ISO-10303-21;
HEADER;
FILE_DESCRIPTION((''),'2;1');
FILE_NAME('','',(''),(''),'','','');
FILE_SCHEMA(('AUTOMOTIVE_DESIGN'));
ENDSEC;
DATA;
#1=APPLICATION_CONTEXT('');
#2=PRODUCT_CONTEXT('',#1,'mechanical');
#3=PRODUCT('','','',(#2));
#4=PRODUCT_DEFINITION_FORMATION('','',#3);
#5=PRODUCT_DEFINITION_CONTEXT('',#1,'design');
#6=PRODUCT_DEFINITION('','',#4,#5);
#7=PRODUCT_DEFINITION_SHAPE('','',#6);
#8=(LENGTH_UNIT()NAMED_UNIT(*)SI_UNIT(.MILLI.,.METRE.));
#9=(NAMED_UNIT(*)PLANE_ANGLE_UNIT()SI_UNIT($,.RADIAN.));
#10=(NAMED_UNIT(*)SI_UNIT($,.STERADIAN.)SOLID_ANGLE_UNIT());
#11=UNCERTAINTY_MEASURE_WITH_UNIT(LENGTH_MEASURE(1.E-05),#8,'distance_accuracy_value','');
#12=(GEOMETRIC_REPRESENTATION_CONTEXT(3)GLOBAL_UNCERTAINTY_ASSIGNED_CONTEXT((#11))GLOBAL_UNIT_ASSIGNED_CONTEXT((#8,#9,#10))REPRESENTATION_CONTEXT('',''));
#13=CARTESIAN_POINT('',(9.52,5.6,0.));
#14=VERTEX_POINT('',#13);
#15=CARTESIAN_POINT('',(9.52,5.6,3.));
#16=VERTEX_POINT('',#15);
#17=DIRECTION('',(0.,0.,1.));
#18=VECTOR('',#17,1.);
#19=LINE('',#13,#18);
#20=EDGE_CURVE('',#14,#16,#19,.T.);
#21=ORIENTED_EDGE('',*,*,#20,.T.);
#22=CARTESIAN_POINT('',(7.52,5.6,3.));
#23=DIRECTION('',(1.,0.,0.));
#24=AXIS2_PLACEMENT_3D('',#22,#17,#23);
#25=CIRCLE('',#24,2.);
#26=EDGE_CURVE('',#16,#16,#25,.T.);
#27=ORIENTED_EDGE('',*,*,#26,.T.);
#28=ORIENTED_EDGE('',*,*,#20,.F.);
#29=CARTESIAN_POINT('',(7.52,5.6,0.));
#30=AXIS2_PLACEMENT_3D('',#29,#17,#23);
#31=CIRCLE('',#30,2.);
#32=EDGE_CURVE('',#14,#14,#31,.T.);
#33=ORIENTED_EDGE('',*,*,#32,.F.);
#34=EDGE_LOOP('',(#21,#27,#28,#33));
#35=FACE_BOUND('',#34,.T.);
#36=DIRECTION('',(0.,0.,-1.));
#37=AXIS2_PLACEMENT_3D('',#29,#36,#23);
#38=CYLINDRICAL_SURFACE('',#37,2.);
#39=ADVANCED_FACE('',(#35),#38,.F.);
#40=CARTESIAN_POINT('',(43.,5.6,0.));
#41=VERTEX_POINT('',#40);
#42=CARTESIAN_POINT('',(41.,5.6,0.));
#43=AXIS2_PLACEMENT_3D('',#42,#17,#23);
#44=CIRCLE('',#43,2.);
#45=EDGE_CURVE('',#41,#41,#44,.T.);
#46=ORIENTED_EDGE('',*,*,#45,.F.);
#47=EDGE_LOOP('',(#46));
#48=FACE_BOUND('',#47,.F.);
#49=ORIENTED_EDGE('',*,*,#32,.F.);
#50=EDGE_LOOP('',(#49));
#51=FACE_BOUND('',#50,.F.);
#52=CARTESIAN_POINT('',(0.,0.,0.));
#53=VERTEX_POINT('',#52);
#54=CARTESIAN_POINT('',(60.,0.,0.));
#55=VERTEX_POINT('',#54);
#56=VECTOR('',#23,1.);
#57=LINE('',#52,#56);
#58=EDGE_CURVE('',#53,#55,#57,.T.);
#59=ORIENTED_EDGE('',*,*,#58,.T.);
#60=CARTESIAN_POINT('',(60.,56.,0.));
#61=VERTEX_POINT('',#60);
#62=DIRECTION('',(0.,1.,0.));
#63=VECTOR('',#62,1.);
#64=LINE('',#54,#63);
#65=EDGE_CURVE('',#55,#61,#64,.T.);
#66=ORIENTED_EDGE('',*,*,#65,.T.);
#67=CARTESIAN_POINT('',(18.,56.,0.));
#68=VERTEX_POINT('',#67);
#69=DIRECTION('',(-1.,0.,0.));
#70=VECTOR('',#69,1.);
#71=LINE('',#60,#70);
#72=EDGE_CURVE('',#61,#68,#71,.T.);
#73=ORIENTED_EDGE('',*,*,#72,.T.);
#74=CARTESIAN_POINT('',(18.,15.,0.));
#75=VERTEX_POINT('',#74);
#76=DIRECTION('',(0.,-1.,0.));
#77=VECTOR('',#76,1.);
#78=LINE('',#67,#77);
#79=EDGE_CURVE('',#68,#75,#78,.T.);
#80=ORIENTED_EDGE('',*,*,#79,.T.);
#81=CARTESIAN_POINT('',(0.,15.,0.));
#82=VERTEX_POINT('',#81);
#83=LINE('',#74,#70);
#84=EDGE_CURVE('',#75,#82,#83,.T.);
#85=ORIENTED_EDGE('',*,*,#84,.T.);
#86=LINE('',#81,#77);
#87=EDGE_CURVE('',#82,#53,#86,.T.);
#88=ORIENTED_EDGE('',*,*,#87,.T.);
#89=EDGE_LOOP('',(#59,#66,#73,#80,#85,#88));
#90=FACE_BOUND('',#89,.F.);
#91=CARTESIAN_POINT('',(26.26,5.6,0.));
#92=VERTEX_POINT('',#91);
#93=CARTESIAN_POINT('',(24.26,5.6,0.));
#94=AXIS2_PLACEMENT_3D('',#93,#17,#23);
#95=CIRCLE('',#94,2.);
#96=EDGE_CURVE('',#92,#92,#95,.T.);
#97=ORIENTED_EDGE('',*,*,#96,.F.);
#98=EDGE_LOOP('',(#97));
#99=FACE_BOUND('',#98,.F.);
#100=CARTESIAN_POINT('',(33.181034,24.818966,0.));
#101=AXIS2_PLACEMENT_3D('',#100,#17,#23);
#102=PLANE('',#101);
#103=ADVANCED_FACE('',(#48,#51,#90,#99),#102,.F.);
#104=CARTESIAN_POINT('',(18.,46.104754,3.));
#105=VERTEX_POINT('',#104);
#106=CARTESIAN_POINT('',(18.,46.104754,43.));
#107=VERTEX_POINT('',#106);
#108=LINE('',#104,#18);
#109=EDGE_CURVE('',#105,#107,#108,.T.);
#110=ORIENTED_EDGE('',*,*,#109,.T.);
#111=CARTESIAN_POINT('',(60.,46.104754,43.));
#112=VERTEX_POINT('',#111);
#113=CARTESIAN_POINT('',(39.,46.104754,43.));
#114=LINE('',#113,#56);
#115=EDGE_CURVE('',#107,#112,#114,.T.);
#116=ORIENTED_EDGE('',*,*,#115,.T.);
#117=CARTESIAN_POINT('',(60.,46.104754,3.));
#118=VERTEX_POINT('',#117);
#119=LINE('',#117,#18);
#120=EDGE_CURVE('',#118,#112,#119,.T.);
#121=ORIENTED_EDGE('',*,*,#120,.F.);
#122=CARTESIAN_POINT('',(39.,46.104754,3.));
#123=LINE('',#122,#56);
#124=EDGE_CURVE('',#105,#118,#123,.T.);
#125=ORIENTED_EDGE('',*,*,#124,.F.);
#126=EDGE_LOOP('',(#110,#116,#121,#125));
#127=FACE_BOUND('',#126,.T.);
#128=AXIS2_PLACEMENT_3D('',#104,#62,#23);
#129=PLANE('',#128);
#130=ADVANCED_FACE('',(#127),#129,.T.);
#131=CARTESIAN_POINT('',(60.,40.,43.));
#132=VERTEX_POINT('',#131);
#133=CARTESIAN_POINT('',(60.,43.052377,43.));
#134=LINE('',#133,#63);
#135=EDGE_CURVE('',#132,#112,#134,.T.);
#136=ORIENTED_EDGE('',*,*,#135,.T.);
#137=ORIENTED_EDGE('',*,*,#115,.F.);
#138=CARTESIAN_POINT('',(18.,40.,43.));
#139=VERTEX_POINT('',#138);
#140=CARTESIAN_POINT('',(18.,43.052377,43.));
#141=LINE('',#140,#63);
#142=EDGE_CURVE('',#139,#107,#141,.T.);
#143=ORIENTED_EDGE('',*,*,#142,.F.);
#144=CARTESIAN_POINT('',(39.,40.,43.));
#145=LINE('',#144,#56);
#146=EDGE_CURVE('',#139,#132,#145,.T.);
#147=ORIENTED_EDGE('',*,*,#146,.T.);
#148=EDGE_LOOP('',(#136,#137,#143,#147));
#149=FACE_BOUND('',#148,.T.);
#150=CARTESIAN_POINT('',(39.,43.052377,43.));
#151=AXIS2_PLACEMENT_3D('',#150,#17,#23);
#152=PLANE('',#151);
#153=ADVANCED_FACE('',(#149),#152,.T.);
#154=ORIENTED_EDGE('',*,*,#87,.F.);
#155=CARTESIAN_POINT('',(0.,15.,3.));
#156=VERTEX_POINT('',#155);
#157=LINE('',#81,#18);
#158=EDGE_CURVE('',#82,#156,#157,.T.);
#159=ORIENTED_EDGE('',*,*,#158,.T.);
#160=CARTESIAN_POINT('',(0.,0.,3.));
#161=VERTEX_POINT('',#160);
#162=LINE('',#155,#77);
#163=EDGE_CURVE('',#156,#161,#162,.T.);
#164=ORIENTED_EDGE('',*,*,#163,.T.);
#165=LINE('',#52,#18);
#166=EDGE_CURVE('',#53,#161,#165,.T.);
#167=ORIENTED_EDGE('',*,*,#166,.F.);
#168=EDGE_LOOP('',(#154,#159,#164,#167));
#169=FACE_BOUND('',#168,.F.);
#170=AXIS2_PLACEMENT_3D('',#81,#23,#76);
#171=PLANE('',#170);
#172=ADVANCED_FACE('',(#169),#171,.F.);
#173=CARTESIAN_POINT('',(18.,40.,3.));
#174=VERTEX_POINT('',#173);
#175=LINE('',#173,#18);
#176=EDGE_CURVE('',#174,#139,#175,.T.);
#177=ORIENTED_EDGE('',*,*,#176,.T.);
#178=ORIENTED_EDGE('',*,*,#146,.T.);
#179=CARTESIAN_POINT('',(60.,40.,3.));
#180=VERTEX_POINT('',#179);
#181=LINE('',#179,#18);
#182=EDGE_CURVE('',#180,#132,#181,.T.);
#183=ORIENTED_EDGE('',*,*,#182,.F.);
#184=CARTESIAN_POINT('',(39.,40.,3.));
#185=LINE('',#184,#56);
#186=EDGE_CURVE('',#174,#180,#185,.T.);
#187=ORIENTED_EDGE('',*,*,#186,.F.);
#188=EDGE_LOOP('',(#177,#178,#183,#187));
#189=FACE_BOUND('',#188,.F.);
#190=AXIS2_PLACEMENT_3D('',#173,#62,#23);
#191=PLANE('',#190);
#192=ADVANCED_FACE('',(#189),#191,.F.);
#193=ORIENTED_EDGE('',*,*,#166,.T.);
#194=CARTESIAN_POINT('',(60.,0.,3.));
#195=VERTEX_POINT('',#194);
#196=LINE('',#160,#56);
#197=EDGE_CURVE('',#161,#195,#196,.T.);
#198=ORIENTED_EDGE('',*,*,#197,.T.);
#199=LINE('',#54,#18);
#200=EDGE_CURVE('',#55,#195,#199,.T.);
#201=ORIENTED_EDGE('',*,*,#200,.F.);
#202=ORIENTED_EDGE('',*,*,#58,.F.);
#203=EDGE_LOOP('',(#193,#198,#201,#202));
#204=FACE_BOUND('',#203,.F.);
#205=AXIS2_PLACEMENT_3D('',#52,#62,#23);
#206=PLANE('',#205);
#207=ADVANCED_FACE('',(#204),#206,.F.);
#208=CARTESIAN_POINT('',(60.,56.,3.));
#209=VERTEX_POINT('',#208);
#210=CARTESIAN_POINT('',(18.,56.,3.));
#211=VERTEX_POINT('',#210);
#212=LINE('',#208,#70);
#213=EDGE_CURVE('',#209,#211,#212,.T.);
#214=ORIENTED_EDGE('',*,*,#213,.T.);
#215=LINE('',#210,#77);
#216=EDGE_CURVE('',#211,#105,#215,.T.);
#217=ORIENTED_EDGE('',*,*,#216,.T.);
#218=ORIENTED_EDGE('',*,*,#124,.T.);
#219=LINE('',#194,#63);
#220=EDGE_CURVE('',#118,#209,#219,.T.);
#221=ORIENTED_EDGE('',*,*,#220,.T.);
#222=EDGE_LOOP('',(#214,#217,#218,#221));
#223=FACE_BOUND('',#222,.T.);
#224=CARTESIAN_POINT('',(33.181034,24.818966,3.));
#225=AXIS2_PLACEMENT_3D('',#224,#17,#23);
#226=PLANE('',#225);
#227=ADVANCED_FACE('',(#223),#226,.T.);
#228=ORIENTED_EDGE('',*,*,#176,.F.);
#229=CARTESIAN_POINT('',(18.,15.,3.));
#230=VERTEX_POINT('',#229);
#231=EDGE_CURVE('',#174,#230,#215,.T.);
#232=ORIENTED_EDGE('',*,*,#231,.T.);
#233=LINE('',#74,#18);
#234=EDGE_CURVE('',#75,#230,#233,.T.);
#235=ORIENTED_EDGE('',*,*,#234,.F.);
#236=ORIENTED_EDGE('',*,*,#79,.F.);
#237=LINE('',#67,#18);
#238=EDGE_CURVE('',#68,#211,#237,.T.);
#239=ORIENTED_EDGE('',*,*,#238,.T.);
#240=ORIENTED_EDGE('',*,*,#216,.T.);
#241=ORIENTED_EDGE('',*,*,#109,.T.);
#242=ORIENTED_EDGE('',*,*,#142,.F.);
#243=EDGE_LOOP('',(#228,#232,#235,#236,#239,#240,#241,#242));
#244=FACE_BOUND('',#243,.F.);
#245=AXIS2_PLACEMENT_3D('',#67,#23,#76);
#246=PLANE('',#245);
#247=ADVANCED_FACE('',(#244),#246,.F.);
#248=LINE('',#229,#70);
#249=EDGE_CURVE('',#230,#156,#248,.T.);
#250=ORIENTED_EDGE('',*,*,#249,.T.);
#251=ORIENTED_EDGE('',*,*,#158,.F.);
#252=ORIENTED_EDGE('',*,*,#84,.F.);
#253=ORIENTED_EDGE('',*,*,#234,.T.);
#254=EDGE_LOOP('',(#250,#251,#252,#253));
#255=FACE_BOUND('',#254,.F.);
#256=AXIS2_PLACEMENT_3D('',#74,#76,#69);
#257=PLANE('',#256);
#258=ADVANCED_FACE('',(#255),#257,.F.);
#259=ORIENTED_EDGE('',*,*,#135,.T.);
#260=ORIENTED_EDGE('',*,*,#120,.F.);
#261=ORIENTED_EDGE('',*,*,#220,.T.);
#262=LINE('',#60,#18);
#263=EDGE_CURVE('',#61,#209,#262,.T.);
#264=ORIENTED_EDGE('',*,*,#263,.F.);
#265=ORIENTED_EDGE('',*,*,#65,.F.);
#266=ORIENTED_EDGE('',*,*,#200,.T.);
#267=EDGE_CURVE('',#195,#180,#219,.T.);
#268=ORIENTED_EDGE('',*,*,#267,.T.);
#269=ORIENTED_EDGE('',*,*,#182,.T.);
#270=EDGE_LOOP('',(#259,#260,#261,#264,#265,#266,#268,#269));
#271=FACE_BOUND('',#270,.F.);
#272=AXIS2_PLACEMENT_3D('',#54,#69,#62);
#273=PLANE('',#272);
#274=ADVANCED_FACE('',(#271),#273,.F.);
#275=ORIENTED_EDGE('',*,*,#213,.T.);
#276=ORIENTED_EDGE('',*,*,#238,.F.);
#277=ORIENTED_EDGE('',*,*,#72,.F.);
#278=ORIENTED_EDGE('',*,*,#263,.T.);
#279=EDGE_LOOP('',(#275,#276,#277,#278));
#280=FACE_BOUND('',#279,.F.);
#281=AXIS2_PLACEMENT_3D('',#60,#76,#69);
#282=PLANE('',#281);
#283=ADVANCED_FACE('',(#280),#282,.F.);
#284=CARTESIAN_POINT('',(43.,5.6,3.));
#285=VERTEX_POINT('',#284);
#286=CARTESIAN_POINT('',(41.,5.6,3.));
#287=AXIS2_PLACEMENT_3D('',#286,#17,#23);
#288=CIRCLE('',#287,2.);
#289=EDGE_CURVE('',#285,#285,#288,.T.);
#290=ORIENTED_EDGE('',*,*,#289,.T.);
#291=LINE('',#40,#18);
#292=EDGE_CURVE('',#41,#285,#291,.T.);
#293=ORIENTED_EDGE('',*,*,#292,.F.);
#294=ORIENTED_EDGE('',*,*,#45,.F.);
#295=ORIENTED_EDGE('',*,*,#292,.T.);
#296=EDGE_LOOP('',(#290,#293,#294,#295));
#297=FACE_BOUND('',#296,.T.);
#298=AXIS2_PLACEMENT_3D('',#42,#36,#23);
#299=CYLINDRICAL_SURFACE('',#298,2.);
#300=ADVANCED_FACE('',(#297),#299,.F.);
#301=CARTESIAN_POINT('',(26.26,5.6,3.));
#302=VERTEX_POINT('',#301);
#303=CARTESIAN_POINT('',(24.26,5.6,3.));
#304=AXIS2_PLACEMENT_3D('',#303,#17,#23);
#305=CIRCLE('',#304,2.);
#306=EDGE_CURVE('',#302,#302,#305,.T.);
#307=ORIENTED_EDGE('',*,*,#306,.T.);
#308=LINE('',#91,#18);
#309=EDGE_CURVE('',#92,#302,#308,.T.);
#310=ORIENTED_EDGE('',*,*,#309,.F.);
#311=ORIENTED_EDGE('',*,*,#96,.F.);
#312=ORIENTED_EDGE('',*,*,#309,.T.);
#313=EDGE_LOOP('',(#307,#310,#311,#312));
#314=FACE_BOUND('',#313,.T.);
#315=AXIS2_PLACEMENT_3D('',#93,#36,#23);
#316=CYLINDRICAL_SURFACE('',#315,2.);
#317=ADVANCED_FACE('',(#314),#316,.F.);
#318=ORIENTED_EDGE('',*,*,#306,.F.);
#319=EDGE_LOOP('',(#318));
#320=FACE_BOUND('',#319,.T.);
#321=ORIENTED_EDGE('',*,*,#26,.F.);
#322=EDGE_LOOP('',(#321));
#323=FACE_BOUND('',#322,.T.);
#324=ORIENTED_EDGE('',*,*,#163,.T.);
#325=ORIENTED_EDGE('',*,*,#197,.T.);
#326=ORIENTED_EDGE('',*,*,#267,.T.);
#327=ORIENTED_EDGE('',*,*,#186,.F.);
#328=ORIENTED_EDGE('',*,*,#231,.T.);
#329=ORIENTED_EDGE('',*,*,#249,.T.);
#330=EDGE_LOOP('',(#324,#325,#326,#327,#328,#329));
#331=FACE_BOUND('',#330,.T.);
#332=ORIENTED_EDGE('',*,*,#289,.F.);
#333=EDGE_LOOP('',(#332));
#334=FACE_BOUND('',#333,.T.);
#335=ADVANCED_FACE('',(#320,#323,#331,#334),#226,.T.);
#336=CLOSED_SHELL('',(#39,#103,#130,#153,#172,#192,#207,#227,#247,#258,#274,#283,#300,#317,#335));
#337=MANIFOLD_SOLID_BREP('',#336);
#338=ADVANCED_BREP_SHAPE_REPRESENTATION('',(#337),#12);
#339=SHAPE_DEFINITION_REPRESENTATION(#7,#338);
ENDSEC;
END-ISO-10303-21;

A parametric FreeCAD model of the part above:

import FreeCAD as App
import Part
import Sketcher

V = App.Vector

doc = App.newDocument("Part")
body = doc.addObject("PartDesign::Body", "Body")

# Sketch on XY plane
sketch1 = doc.addObject("Sketcher::SketchObject", "Sketch")
body.addObject(sketch1)
sketch1.AttachmentSupport = (doc.XY_Plane, [""])
sketch1.MapMode = "FlatFace"
sketch1.addGeometry([
    Part.LineSegment(V(0, 0, 0), V(60, 0, 0)),  # 0
    Part.LineSegment(V(60, 0, 0), V(60, 56, 0)),  # 1
    Part.LineSegment(V(60, 56, 0), V(18, 56, 0)),  # 2
    Part.LineSegment(V(18, 56, 0), V(18, 15, 0)),  # 3
    Part.LineSegment(V(18, 15, 0), V(0, 15, 0)),  # 4
    Part.LineSegment(V(0, 15, 0), V(0, 0, 0)),  # 5
    Part.Circle(V(7.52, 5.6, 0), V(0, 0, 1), 2),  # 6
    Part.Circle(V(24.26, 5.6, 0), V(0, 0, 1), 2),  # 7
    Part.Circle(V(41, 5.6, 0), V(0, 0, 1), 2),  # 8
], False)
sketch1.addConstraint([
    Sketcher.Constraint("Coincident", 0, 2, 1, 1),
    Sketcher.Constraint("Coincident", 1, 2, 2, 1),
    Sketcher.Constraint("Coincident", 2, 2, 3, 1),
    Sketcher.Constraint("Coincident", 3, 2, 4, 1),
    Sketcher.Constraint("Coincident", 4, 2, 5, 1),
    Sketcher.Constraint("Coincident", 5, 2, 0, 1),
    Sketcher.Constraint("Horizontal", 0),
    Sketcher.Constraint("Vertical", 1),
    Sketcher.Constraint("Horizontal", 2),
    Sketcher.Constraint("Vertical", 3),
    Sketcher.Constraint("Horizontal", 4),
    Sketcher.Constraint("Vertical", 5),
    Sketcher.Constraint("Coincident", 5, 2, -1, 1),
    Sketcher.Constraint("Equal", 6, 7),
    Sketcher.Constraint("Equal", 7, 8),
    Sketcher.Constraint("Horizontal", 6, 3, 7, 3),
    Sketcher.Constraint("Horizontal", 7, 3, 8, 3),
    Sketcher.Constraint("Diameter", 6, 4.0),
    Sketcher.Constraint("DistanceX", 0, 1, 0, 2, 60.0),
    Sketcher.Constraint("DistanceX", 2, 2, 2, 1, 42.0),
    Sketcher.Constraint("DistanceY", 1, 1, 1, 2, 56.0),
    Sketcher.Constraint("DistanceY", 3, 2, 3, 1, 41.0),
    Sketcher.Constraint("DistanceX", -1, 1, 8, 3, 41.0),
    Sketcher.Constraint("DistanceY", -1, 1, 6, 3, 5.6),
    Sketcher.Constraint("DistanceX", -1, 1, 6, 3, 7.52),
    Sketcher.Constraint("DistanceX", -1, 1, 7, 3, 24.26),
])
pad1 = doc.addObject("PartDesign::Pad", "Pad")
body.addObject(pad1)
pad1.Profile = sketch1
pad1.Length = 3

# Sketch on XY plane
sketch2 = doc.addObject("Sketcher::SketchObject", "Sketch001")
body.addObject(sketch2)
sketch2.AttachmentSupport = (doc.XY_Plane, [""])
sketch2.MapMode = "FlatFace"
sketch2.AttachmentOffset = App.Placement(V(0, 0, 3), App.Rotation())
sketch2.addGeometry([
    Part.LineSegment(V(18, 46.104754, 0), V(18, 40, 0)),
    Part.LineSegment(V(18, 40, 0), V(60, 40, 0)),
    Part.LineSegment(V(60, 40, 0), V(60, 46.104754, 0)),
    Part.LineSegment(V(60, 46.104754, 0), V(18, 46.104754, 0)),
], False)
sketch2.addConstraint([
    Sketcher.Constraint("Coincident", 0, 2, 1, 1),
    Sketcher.Constraint("Coincident", 1, 2, 2, 1),
    Sketcher.Constraint("Coincident", 2, 2, 3, 1),
    Sketcher.Constraint("Coincident", 3, 2, 0, 1),
    Sketcher.Constraint("Vertical", 0),
    Sketcher.Constraint("Horizontal", 1),
    Sketcher.Constraint("Vertical", 2),
    Sketcher.Constraint("Horizontal", 3),
    Sketcher.Constraint("DistanceX", 1, 1, 1, 2, 42.0),
    Sketcher.Constraint("DistanceX", -1, 1, 0, 2, 18.0),
    Sketcher.Constraint("DistanceY", -1, 1, 0, 2, 40.0),
    Sketcher.Constraint("DistanceY", 0, 2, 0, 1, 6.104755),
])
pad2 = doc.addObject("PartDesign::Pad", "Pad001")
body.addObject(pad2)
pad2.Profile = sketch2
pad2.Length = 40

doc.recompute()
